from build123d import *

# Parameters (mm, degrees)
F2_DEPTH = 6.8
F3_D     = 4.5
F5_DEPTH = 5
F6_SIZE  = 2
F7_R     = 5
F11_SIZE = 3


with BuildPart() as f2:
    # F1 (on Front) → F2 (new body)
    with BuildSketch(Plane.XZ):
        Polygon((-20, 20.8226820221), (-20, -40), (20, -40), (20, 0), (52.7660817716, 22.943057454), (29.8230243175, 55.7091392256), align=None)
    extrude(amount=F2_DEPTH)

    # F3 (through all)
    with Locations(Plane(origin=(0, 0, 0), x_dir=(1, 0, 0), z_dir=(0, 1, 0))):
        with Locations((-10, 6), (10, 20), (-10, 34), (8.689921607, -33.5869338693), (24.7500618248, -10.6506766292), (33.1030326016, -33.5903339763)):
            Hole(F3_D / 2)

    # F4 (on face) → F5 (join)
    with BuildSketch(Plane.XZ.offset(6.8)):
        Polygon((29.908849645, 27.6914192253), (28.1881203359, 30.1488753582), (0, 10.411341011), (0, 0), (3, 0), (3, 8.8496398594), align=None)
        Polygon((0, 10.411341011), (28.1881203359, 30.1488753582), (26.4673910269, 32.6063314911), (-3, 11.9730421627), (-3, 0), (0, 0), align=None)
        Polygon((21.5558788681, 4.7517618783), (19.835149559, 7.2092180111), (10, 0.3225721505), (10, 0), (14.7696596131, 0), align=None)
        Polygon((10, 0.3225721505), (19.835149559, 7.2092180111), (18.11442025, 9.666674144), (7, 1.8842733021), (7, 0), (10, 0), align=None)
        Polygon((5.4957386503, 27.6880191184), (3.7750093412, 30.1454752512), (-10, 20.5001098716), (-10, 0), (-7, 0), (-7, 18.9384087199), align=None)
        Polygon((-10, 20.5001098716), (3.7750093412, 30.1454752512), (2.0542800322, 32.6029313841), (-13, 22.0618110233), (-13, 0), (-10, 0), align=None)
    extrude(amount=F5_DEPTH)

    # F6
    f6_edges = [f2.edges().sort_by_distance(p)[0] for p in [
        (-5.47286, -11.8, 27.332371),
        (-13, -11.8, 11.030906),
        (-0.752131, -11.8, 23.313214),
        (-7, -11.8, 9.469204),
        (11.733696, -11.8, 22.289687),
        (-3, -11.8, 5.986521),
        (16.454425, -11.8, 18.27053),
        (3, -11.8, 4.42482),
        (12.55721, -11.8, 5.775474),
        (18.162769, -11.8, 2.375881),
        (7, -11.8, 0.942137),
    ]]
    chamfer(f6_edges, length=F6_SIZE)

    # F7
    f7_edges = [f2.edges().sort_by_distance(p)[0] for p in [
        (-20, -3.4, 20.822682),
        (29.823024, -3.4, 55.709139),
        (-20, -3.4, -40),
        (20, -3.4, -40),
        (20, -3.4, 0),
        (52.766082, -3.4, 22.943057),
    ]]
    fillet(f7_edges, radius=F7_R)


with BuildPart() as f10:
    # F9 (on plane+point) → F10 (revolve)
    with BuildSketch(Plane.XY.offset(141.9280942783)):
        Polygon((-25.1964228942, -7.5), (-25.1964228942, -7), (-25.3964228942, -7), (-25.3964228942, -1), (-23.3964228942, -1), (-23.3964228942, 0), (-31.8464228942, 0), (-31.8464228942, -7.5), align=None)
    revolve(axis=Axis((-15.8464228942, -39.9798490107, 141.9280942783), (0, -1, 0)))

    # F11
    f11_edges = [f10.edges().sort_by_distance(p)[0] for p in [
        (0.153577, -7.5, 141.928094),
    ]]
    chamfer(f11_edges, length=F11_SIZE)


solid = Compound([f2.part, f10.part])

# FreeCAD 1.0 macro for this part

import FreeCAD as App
import Part
import Sketcher
Q = App.Units.Quantity


def edges_at(feature, points):
    """Names of the edges that pass closest to the given points."""
    edges = feature.Shape.Edges
    near = lambda p: min(range(len(edges)), key=lambda i: edges[i].distToShape(Part.Vertex(*p))[0])
    return sorted({f"Edge{near(p) + 1}" for p in points})

doc = App.newDocument("Part")
params = doc.addObject("Spreadsheet::Sheet", "Params")
for row, (alias, value) in enumerate([
    ("sketch1_width", "40 mm"),
    ("sketch1_length", "40 mm"),
    ("pad1_length", "6.8 mm"),
    ("sketch2_diameter", "4.5 mm"),
    ("hole_diameter", "4.5 mm"),
    ("sketch3_width", "6 mm"),
    ("sketch3_length", "3 mm"),
    ("pad2_length", "5 mm"),
    ("chamfer_size", "2 mm"),
    ("fillet_radius", "5 mm"),
    ("sketch4_width", "2 mm"),
    ("sketch4_height", "6 mm"),
    ("sketch4_height2", "1 mm"),
    ("sketch4_width2", "0.2 mm"),
    ("sketch4_height3", "0.5 mm"),
    ("revolution_angle", "360 deg"),
    ("chamfer2_size", "3 mm"),
], start=1):
    params.set(f"A{row}", alias)
    params.set(f"B{row}", "=" + value)
    params.setAlias(f"B{row}", alias)

body = doc.addObject("PartDesign::Body", "Body")

sketch1 = doc.addObject("Sketcher::SketchObject", "Sketch")
body.addObject(sketch1)
sketch1.AttachmentSupport = (doc.XZ_Plane, [""])
sketch1.MapMode = "FlatFace"
sketch1.addGeometry(Part.LineSegment(App.Vector(-20, 21, 0), App.Vector(-20, -40, 0)), False)
sketch1.addGeometry(Part.LineSegment(App.Vector(-20, -40, 0), App.Vector(20, -40, 0)), False)
sketch1.addGeometry(Part.LineSegment(App.Vector(20, -40, 0), App.Vector(20, 0, 0)), False)
sketch1.addGeometry(Part.LineSegment(App.Vector(20, 0, 0), App.Vector(53, 23, 0)), False)
sketch1.addGeometry(Part.LineSegment(App.Vector(53, 23, 0), App.Vector(30, 56, 0)), False)
sketch1.addGeometry(Part.LineSegment(App.Vector(30, 56, 0), App.Vector(-20, 21, 0)), False)
sketch1.addConstraint(Sketcher.Constraint("Coincident", 0, 2, 1, 1))
sketch1.addConstraint(Sketcher.Constraint("Coincident", 1, 2, 2, 1))
sketch1.addConstraint(Sketcher.Constraint("Coincident", 2, 2, 3, 1))
sketch1.addConstraint(Sketcher.Constraint("Coincident", 3, 2, 4, 1))
sketch1.addConstraint(Sketcher.Constraint("Coincident", 4, 2, 5, 1))
sketch1.addConstraint(Sketcher.Constraint("Coincident", 5, 2, 0, 1))
sketch1.addConstraint(Sketcher.Constraint("Vertical", 0))
sketch1.addConstraint(Sketcher.Constraint("Horizontal", 1))
sketch1.addConstraint(Sketcher.Constraint("Vertical", 2))
sketch1.addConstraint(Sketcher.Constraint("PointOnObject", 2, 2, -1))
sketch1.addConstraint(Sketcher.Constraint("Perpendicular", 3, 4))
sketch1.addConstraint(Sketcher.Constraint("Perpendicular", 4, 5))
sketch1.addConstraint(Sketcher.Constraint("Equal", 1, 2))
sketch1.addConstraint(Sketcher.Constraint("Equal", 3, 4))
sketch1.addConstraint(Sketcher.Constraint("DistanceX", 1, 1, 1, 2, Q("40 mm")))
sketch1.addConstraint(Sketcher.Constraint("Angle", 3, Q("35 deg")))
sketch1.addConstraint(Sketcher.Constraint("Distance", 3, Q("40 mm")))
sketch1.addConstraint(Sketcher.Constraint("DistanceX", 0, 2, -1, 1, Q("20 mm")))
sketch1.setExpression("Constraints[14]", "Params.sketch1_width")
sketch1.setExpression("Constraints[16]", "Params.sketch1_length")
pad1 = doc.addObject("PartDesign::Pad", "Pad")
body.addObject(pad1)
pad1.Profile = sketch1
pad1.setExpression("Length", "Params.pad1_length")

sketch2 = doc.addObject("Sketcher::SketchObject", "Sketch001")
body.addObject(sketch2)
sketch2.AttachmentSupport = (doc.XZ_Plane, [""])
sketch2.MapMode = "FlatFace"
sketch2.addGeometry(Part.Circle(App.Vector(-10, -6, 0), App.Vector(0, 0, 1), 2.2), False)
sketch2.addGeometry(Part.Circle(App.Vector(10, -20, 0), App.Vector(0, 0, 1), 2.2), False)
sketch2.addGeometry(Part.Circle(App.Vector(-10, -34, 0), App.Vector(0, 0, 1), 2.2), False)
sketch2.addGeometry(Part.Circle(App.Vector(8.7, 33.6, 0), App.Vector(0, 0, 1), 2.2), False)
sketch2.addGeometry(Part.Circle(App.Vector(24.8, 10.7, 0), App.Vector(0, 0, 1), 2.2), False)
sketch2.addGeometry(Part.Circle(App.Vector(33.1, 33.6, 0), App.Vector(0, 0, 1), 2.2), False)
sketch2.addConstraint(Sketcher.Constraint("Equal", 0, 1))
sketch2.addConstraint(Sketcher.Constraint("Equal", 1, 2))
sketch2.addConstraint(Sketcher.Constraint("Equal", 2, 3))
sketch2.addConstraint(Sketcher.Constraint("Equal", 3, 4))
sketch2.addConstraint(Sketcher.Constraint("Equal", 4, 5))
sketch2.addConstraint(Sketcher.Constraint("Vertical", 0, 3, 2, 3))
sketch2.addConstraint(Sketcher.Constraint("Diameter", 0, Q("4.5 mm")))
sketch2.addConstraint(Sketcher.Constraint("DistanceX", 0, 3, -1, 1, Q("10 mm")))
sketch2.addConstraint(Sketcher.Constraint("DistanceY", 0, 3, -1, 1, Q("6 mm")))
sketch2.addConstraint(Sketcher.Constraint("DistanceX", -1, 1, 1, 3, Q("10 mm")))
sketch2.addConstraint(Sketcher.Constraint("DistanceY", 1, 3, -1, 1, Q("20 mm")))
sketch2.addConstraint(Sketcher.Constraint("DistanceY", 2, 3, -1, 1, Q("34 mm")))
sketch2.addConstraint(Sketcher.Constraint("DistanceY", 3, 3, 5, 3, Q("0.0034 mm")))
sketch2.addConstraint(Sketcher.Constraint("DistanceX", -1, 1, 3, 3, Q("8.689922 mm")))
sketch2.addConstraint(Sketcher.Constraint("DistanceX", -1, 1, 4, 3, Q("24.750062 mm")))
sketch2.addConstraint(Sketcher.Constraint("DistanceX", 4, 3, 5, 3, Q("8.352971 mm")))
sketch2.addConstraint(Sketcher.Constraint("DistanceY", -1, 1, 3, 3, Q("33.586934 mm")))
sketch2.addConstraint(Sketcher.Constraint("DistanceY", -1, 1, 4, 3, Q("10.650677 mm")))
sketch2.setExpression("Constraints[6]", "Params.sketch2_diameter")
doc.recompute()
hole = doc.addObject("PartDesign::Hole", "Hole")
body.addObject(hole)
hole.Profile = sketch2
hole.ThreadType = "None"
hole.setExpression("Diameter", "Params.hole_diameter")
hole.DepthType = "ThroughAll"
hole.Reversed = True

sketch3 = doc.addObject("Sketcher::SketchObject", "Sketch002")
body.addObject(sketch3)
sketch3.AttachmentSupport = (doc.XZ_Plane, [""])
sketch3.MapMode = "FlatFace"
sketch3.AttachmentOffset = App.Placement(App.Vector(0, 0, 6.8), App.Rotation())
sketch3.addGeometry(Part.LineSegment(App.Vector(29.9, 27.7, 0), App.Vector(28.2, 30.1, 0)), False)
sketch3.addGeometry(Part.LineSegment(App.Vector(28.2, 30.1, 0), App.Vector(26.5, 32.6, 0)), False)
sketch3.addGeometry(Part.LineSegment(App.Vector(26.5, 32.6, 0), App.Vector(-3, 12, 0)), False)
sketch3.addGeometry(Part.LineSegment(App.Vector(-3, 12, 0), App.Vector(-3, 0, 0)), False)
sketch3.addGeometry(Part.LineSegment(App.Vector(-3, 0, 0), App.Vector(3, 0, 0)), False)
sketch3.addGeometry(Part.LineSegment(App.Vector(3, 0, 0), App.Vector(3, 8.8, 0)), False)
sketch3.addGeometry(Part.LineSegment(App.Vector(3, 8.8, 0), App.Vector(29.9, 27.7, 0)), False)
sketch3.addGeometry(Part.LineSegment(App.Vector(21.6, 4.8, 0), App.Vector(19.8, 7.2, 0)), False)
sketch3.addGeometry(Part.LineSegment(App.Vector(19.8, 7.2, 0), App.Vector(18.1, 9.7, 0)), False)
sketch3.addGeometry(Part.LineSegment(App.Vector(18.1, 9.7, 0), App.Vector(7, 1.9, 0)), False)
sketch3.addGeometry(Part.LineSegment(App.Vector(7, 1.9, 0), App.Vector(7, 0, 0)), False)
sketch3.addGeometry(Part.LineSegment(App.Vector(7, 0, 0), App.Vector(14.8, 0, 0)), False)
sketch3.addGeometry(Part.LineSegment(App.Vector(14.8, 0, 0), App.Vector(21.6, 4.8, 0)), False)
sketch3.addGeometry(Part.LineSegment(App.Vector(5.5, 27.7, 0), App.Vector(3.8, 30.1, 0)), False)
sketch3.addGeometry(Part.LineSegment(App.Vector(3.8, 30.1, 0), App.Vector(2.1, 32.6, 0)), False)
sketch3.addGeometry(Part.LineSegment(App.Vector(2.1, 32.6, 0), App.Vector(-13, 22.1, 0)), False)
sketch3.addGeometry(Part.LineSegment(App.Vector(-13, 22.1, 0), App.Vector(-13, 0, 0)), False)
sketch3.addGeometry(Part.LineSegment(App.Vector(-13, 0, 0), App.Vector(-7, 0, 0)), False)
sketch3.addGeometry(Part.LineSegment(App.Vector(-7, 0, 0), App.Vector(-7, 18.9, 0)), False)
sketch3.addGeometry(Part.LineSegment(App.Vector(-7, 18.9, 0), App.Vector(5.5, 27.7, 0)), False)
sketch3.addConstraint(Sketcher.Constraint("Coincident", 0, 2, 1, 1))
sketch3.addConstraint(Sketcher.Constraint("Coincident", 1, 2, 2, 1))
sketch3.addConstraint(Sketcher.Constraint("Coincident", 2, 2, 3, 1))
sketch3.addConstraint(Sketcher.Constraint("Coincident", 3, 2, 4, 1))
sketch3.addConstraint(Sketcher.Constraint("Coincident", 4, 2, 5, 1))
sketch3.addConstraint(Sketcher.Constraint("Coincident", 5, 2, 6, 1))
sketch3.addConstraint(Sketcher.Constraint("Coincident", 6, 2, 0, 1))
sketch3.addConstraint(Sketcher.Constraint("Coincident", 7, 2, 8, 1))
sketch3.addConstraint(Sketcher.Constraint("Coincident", 8, 2, 9, 1))
sketch3.addConstraint(Sketcher.Constraint("Coincident", 9, 2, 10, 1))
sketch3.addConstraint(Sketcher.Constraint("Coincident", 10, 2, 11, 1))
sketch3.addConstraint(Sketcher.Constraint("Coincident", 11, 2, 12, 1))
sketch3.addConstraint(Sketcher.Constraint("Coincident", 12, 2, 7, 1))
sketch3.addConstraint(Sketcher.Constraint("Coincident", 13, 2, 14, 1))
sketch3.addConstraint(Sketcher.Constraint("Coincident", 14, 2, 15, 1))
sketch3.addConstraint(Sketcher.Constraint("Coincident", 15, 2, 16, 1))
sketch3.addConstraint(Sketcher.Constraint("Coincident", 16, 2, 17, 1))
sketch3.addConstraint(Sketcher.Constraint("Coincident", 17, 2, 18, 1))
sketch3.addConstraint(Sketcher.Constraint("Coincident", 18, 2, 19, 1))
sketch3.addConstraint(Sketcher.Constraint("Coincident", 19, 2, 13, 1))
sketch3.addConstraint(Sketcher.Constraint("Vertical", 3))
sketch3.addConstraint(Sketcher.Constraint("Horizontal", 4))
sketch3.addConstraint(Sketcher.Constraint("Vertical", 5))
sketch3.addConstraint(Sketcher.Constraint("Vertical", 10))
sketch3.addConstraint(Sketcher.Constraint("Horizontal", 11))
sketch3.addConstraint(Sketcher.Constraint("Vertical", 16))
sketch3.addConstraint(Sketcher.Constraint("Horizontal", 17))
sketch3.addConstraint(Sketcher.Constraint("Vertical", 18))
sketch3.addConstraint(Sketcher.Constraint("Symmetric", 3, 2, 4, 2, -1, 1))
sketch3.addConstraint(Sketcher.Constraint("Symmetric", 10, 2, 17, 2, -1, 1))
sketch3.addConstraint(Sketcher.Constraint("PointOnObject", 10, 2, -1))
sketch3.addConstraint(Sketcher.Constraint("Parallel", 0, 1))
sketch3.addConstraint(Sketcher.Constraint("Perpendicular", 1, 2))
sketch3.addConstraint(Sketcher.Constraint("Parallel", 2, 6))
sketch3.addConstraint(Sketcher.Constraint("Perpendicular", 6, 7))
sketch3.addConstraint(Sketcher.Constraint("Parallel", 7, 8))
sketch3.addConstraint(Sketcher.Constraint("Perpendicular", 8, 9))
sketch3.addConstraint(Sketcher.Constraint("Parallel", 9, 12))
sketch3.addConstraint(Sketcher.Constraint("Perpendicular", 12, 13))
sketch3.addConstraint(Sketcher.Constraint("Parallel", 13, 14))
sketch3.addConstraint(Sketcher.Constraint("Perpendicular", 14, 15))
sketch3.addConstraint(Sketcher.Constraint("Parallel", 15, 19))
sketch3.addConstraint(Sketcher.Constraint("Equal", 4, 17))
sketch3.addConstraint(Sketcher.Constraint("Equal", 0, 1))
sketch3.addConstraint(Sketcher.Constraint("Equal", 1, 7))
sketch3.addConstraint(Sketcher.Constraint("Equal", 7, 8))
sketch3.addConstraint(Sketcher.Constraint("Equal", 8, 13))
sketch3.addConstraint(Sketcher.Constraint("Equal", 13, 14))
sketch3.addConstraint(Sketcher.Constraint("DistanceX", 4, 1, 4, 2, Q("6 mm")))
sketch3.addConstraint(Sketcher.Constraint("Angle", 0, Q("125 deg")))
sketch3.addConstraint(Sketcher.Constraint("Distance", 0, Q("3 mm")))
sketch3.addConstraint(Sketcher.Constraint("DistanceX", -1, 1, 9, 2, Q("7 mm")))
sketch3.addConstraint(Sketcher.Constraint("Distance", 9, Q("13.568202 mm")))
sketch3.addConstraint(Sketcher.Constraint("DistanceX", 11, 1, 11, 2, Q("7.76966 mm")))
sketch3.addConstraint(Sketcher.Constraint("DistanceY", 5, 1, 5, 2, Q("8.84964 mm")))
sketch3.addConstraint(Sketcher.Constraint("DistanceY", 16, 2, 16, 1, Q("22.061811 mm")))
sketch3.addConstraint(Sketcher.Constraint("DistanceX", 7, 2, 6, 2, Q("10.0737 mm")))
sketch3.addConstraint(Sketcher.Constraint("DistanceY", 13, 2, 0, 2, Q("0.0034 mm")))
sketch3.setExpression("Constraints[48]", "Params.sketch3_width")
sketch3.setExpression("Constraints[50]", "Params.sketch3_length")
pad2 = doc.addObject("PartDesign::Pad", "Pad001")
body.addObject(pad2)
pad2.Profile = sketch3
pad2.setExpression("Length", "Params.pad2_length")
doc.recompute()

chamfer = doc.addObject("PartDesign::Chamfer", "Chamfer")
body.addObject(chamfer)
chamfer.Base = (pad2, edges_at(pad2, [
    (-5.473, -11.8, 27.332),
    (-13, -11.8, 11.031),
    (-0.752, -11.8, 23.313),
    (-7, -11.8, 9.469),
    (11.734, -11.8, 22.29),
    (-3, -11.8, 5.987),
    (16.454, -11.8, 18.271),
    (3, -11.8, 4.425),
    (12.557, -11.8, 5.775),
    (18.163, -11.8, 2.376),
    (7, -11.8, 0.942),
]))
chamfer.setExpression("Size", "Params.chamfer_size")
doc.recompute()

fillet = doc.addObject("PartDesign::Fillet", "Fillet")
body.addObject(fillet)
fillet.Base = (chamfer, edges_at(chamfer, [
    (-20, -3.4, 20.823),
    (29.823, -3.4, 55.709),
    (-20, -3.4, -40),
    (20, -3.4, -40),
    (20, -3.4, 0),
    (52.766, -3.4, 22.943),
]))
fillet.setExpression("Radius", "Params.fillet_radius")
body2 = doc.addObject("PartDesign::Body", "Body001")

sketch4 = doc.addObject("Sketcher::SketchObject", "Sketch003")
body2.addObject(sketch4)
sketch4.AttachmentSupport = (doc.getObject("XY_Plane001"), [""])
sketch4.MapMode = "FlatFace"
sketch4.AttachmentOffset = App.Placement(App.Vector(0, 0, 141.928094), App.Rotation())
sketch4.addGeometry(Part.LineSegment(App.Vector(-25.2, -7.5, 0), App.Vector(-25.2, -7, 0)), False)
sketch4.addGeometry(Part.LineSegment(App.Vector(-25.2, -7, 0), App.Vector(-25.4, -7, 0)), False)
sketch4.addGeometry(Part.LineSegment(App.Vector(-25.4, -7, 0), App.Vector(-25.4, -1, 0)), False)
sketch4.addGeometry(Part.LineSegment(App.Vector(-25.4, -1, 0), App.Vector(-23.4, -1, 0)), False)
sketch4.addGeometry(Part.LineSegment(App.Vector(-23.4, -1, 0), App.Vector(-23.4, 0, 0)), False)
sketch4.addGeometry(Part.LineSegment(App.Vector(-23.4, 0, 0), App.Vector(-31.85, 0, 0)), False)
sketch4.addGeometry(Part.LineSegment(App.Vector(-31.85, 0, 0), App.Vector(-31.85, -7.5, 0)), False)
sketch4.addGeometry(Part.LineSegment(App.Vector(-31.85, -7.5, 0), App.Vector(-25.2, -7.5, 0)), False)
sketch4.addGeometry(Part.LineSegment(App.Vector(-15.85, 0, 0), App.Vector(-15.85, -7.5, 0)), True)
sketch4.addConstraint(Sketcher.Constraint("Coincident", 0, 2, 1, 1))
sketch4.addConstraint(Sketcher.Constraint("Coincident", 1, 2, 2, 1))
sketch4.addConstraint(Sketcher.Constraint("Coincident", 2, 2, 3, 1))
sketch4.addConstraint(Sketcher.Constraint("Coincident", 3, 2, 4, 1))
sketch4.addConstraint(Sketcher.Constraint("Coincident", 4, 2, 5, 1))
sketch4.addConstraint(Sketcher.Constraint("Coincident", 5, 2, 6, 1))
sketch4.addConstraint(Sketcher.Constraint("Coincident", 6, 2, 7, 1))
sketch4.addConstraint(Sketcher.Constraint("Coincident", 7, 2, 0, 1))
sketch4.addConstraint(Sketcher.Constraint("Vertical", 0))
sketch4.addConstraint(Sketcher.Constraint("Horizontal", 1))
sketch4.addConstraint(Sketcher.Constraint("Vertical", 2))
sketch4.addConstraint(Sketcher.Constraint("Horizontal", 3))
sketch4.addConstraint(Sketcher.Constraint("Vertical", 4))
sketch4.addConstraint(Sketcher.Constraint("Horizontal", 5))
sketch4.addConstraint(Sketcher.Constraint("Vertical", 6))
sketch4.addConstraint(Sketcher.Constraint("Horizontal", 7))
sketch4.addConstraint(Sketcher.Constraint("Vertical", 8))
sketch4.addConstraint(Sketcher.Constraint("PointOnObject", 4, 2, -1))
sketch4.addConstraint(Sketcher.Constraint("PointOnObject", 8, 1, -1))
sketch4.addConstraint(Sketcher.Constraint("Horizontal", 7, 2, 8, 2))
sketch4.addConstraint(Sketcher.Constraint("DistanceX", 3, 1, 3, 2, Q("2 mm")))
sketch4.addConstraint(Sketcher.Constraint("DistanceY", 2, 1, 2, 2, Q("6 mm")))
sketch4.addConstraint(Sketcher.Constraint("DistanceY", 4, 1, 4, 2, Q("1 mm")))
sketch4.addConstraint(Sketcher.Constraint("DistanceX", 1, 2, 1, 1, Q("0.2 mm")))
sketch4.addConstraint(Sketcher.Constraint("DistanceY", 0, 1, 0, 2, Q("0.5 mm")))
sketch4.addConstraint(Sketcher.Constraint("DistanceX", 5, 2, 5, 1, Q("8.45 mm")))
sketch4.addConstraint(Sketcher.Constraint("DistanceX", 4, 2, 8, 1, Q("7.55 mm")))
sketch4.addConstraint(Sketcher.Constraint("DistanceX", 0, 2, -1, 1, Q("25.196423 mm")))
sketch4.setExpression("Constraints[20]", "Params.sketch4_width")
sketch4.setExpression("Constraints[21]", "Params.sketch4_height")
sketch4.setExpression("Constraints[22]", "Params.sketch4_height2")
sketch4.setExpression("Constraints[23]", "Params.sketch4_width2")
sketch4.setExpression("Constraints[24]", "Params.sketch4_height3")
revolution = doc.addObject("PartDesign::Revolution", "Revolution")
body2.addObject(revolution)
revolution.Profile = sketch4
revolution.ReferenceAxis = (sketch4, ["Axis0"])
revolution.setExpression("Angle", "Params.revolution_angle")
doc.recompute()

chamfer2 = doc.addObject("PartDesign::Chamfer", "Chamfer001")
body2.addObject(chamfer2)
chamfer2.Base = (revolution, edges_at(revolution, [(0.154, -7.5, 141.928)]))
chamfer2.setExpression("Size", "Params.chamfer2_size")

doc.recompute()
